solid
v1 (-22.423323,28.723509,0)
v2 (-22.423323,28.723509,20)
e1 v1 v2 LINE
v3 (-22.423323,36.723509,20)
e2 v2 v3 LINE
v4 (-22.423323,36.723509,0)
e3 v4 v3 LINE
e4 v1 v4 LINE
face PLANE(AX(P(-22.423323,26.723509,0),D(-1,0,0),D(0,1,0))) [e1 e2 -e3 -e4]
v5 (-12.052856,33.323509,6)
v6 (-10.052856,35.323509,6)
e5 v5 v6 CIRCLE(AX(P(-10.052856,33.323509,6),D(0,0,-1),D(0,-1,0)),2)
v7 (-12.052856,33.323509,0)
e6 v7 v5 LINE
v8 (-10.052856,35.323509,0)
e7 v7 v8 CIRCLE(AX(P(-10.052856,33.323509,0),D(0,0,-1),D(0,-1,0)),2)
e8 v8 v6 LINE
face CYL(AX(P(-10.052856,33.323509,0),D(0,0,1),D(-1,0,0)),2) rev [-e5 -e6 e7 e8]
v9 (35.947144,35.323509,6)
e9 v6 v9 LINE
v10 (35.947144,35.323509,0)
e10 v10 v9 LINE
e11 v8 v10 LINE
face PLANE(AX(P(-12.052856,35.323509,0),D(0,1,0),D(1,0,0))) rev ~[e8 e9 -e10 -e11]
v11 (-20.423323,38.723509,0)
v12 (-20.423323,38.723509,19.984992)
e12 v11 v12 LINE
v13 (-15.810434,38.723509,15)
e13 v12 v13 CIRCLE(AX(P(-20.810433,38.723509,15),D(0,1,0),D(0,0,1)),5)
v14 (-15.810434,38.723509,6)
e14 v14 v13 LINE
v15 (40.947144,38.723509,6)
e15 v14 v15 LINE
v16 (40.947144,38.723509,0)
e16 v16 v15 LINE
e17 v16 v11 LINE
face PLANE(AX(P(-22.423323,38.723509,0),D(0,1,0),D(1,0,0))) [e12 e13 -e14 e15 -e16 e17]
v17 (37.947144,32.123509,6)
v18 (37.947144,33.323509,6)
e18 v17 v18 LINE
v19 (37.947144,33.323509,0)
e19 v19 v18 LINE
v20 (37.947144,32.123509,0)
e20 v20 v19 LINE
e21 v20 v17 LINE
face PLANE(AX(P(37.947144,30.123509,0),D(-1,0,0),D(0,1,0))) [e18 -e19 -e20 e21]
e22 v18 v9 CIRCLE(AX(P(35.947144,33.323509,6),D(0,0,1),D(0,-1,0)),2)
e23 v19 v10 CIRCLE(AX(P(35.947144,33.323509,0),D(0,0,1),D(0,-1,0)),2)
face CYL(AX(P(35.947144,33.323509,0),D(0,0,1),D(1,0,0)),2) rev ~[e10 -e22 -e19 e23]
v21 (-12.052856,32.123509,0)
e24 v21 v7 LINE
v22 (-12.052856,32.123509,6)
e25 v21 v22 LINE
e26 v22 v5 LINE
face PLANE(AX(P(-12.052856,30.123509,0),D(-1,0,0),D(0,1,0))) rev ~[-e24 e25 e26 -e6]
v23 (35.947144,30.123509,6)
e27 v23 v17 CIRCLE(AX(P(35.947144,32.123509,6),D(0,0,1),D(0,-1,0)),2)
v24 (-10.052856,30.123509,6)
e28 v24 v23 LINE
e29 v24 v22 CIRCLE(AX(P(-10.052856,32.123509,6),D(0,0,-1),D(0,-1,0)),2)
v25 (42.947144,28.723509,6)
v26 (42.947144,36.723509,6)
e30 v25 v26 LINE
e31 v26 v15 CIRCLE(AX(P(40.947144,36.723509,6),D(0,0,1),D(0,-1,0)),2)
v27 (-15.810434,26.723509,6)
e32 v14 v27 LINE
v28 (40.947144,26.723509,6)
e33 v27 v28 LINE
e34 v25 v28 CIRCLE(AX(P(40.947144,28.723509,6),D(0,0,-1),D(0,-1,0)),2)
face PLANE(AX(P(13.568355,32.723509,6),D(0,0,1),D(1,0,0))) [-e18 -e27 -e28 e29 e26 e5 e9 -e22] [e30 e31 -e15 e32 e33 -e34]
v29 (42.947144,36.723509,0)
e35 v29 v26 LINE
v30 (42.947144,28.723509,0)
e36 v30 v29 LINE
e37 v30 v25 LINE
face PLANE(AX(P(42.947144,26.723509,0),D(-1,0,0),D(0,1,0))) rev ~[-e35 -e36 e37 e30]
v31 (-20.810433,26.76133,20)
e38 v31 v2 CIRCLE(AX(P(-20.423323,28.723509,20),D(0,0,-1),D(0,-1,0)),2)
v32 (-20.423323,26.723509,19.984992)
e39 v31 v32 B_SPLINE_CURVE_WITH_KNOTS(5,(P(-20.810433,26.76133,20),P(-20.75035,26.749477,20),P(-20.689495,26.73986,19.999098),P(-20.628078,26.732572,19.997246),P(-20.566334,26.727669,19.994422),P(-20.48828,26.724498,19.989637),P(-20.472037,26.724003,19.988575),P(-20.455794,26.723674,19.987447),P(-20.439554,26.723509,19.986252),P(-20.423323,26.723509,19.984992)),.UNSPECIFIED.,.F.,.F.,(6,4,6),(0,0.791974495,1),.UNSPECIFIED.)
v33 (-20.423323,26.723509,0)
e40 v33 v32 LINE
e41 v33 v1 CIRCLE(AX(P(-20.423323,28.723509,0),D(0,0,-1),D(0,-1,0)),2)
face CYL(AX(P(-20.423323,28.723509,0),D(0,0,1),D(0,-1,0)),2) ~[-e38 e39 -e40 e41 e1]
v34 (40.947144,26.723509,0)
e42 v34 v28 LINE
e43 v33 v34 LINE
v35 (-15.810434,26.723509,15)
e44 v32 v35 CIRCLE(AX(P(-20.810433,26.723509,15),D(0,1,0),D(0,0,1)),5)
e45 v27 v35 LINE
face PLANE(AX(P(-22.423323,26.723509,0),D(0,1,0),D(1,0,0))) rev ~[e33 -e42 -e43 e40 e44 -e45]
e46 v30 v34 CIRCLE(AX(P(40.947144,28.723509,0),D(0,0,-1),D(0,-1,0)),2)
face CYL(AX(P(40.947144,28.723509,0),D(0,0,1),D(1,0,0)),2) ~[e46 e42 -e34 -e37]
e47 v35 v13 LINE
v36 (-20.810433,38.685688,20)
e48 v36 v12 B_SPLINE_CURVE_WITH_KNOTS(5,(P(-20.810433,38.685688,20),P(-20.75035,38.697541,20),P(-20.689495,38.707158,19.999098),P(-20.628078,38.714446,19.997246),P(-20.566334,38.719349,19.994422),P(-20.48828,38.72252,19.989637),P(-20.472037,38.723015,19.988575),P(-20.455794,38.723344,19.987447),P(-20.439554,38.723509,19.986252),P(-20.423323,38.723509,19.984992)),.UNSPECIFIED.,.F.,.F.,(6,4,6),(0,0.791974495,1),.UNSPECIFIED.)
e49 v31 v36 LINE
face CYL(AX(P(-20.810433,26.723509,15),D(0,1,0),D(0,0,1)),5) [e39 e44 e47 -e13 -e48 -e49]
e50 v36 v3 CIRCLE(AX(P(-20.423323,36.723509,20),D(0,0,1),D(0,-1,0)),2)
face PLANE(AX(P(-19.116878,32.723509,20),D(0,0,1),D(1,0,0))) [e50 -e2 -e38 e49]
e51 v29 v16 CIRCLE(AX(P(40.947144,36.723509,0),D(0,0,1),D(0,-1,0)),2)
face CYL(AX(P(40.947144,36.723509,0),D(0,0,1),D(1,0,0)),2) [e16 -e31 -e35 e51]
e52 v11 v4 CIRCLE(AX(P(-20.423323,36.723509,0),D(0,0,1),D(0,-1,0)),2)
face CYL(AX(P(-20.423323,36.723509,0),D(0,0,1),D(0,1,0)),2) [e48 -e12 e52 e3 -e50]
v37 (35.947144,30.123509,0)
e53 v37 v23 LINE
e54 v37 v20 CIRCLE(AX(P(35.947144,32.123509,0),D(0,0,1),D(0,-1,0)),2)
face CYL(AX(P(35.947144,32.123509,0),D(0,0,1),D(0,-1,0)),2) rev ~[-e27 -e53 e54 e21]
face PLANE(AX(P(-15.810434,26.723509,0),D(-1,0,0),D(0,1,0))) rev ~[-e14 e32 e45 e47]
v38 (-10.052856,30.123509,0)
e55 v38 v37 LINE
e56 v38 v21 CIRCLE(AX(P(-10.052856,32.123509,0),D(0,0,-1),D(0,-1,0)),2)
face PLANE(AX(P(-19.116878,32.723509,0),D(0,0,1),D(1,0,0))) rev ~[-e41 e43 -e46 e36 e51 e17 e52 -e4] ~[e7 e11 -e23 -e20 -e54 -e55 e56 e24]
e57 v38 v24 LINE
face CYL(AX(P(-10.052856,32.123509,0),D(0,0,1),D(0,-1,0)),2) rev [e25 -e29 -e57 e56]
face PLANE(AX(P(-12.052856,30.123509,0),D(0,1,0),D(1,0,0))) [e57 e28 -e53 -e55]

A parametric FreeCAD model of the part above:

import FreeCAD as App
import Part
import Sketcher
from FreeCAD import Vector
Q = App.Units.Quantity


def edges_at(feature, points):
    """Names of the edges that pass closest to the given points."""
    edges = feature.Shape.Edges
    near = lambda p: min(range(len(edges)), key=lambda i: edges[i].distToShape(Part.Vertex(*p))[0])
    return sorted({f"Edge{near(p) + 1}" for p in points})


def add_polygon(sketch, points):
    """Adds a closed chain of lines whose ends are joined by coincident constraints."""
    first, n = sketch.GeometryCount, len(points)
    for a, b in zip(points, points[1:] + points[:1]):
        sketch.addGeometry(Part.LineSegment(App.Vector(*a, 0), App.Vector(*b, 0)), False)
    for i in range(n):
        sketch.addConstraint(Sketcher.Constraint("Coincident", first + i, 2, first + (i + 1) % n, 1))

doc = App.newDocument("Part")
body = doc.addObject("PartDesign::Body", "Body")

sketch1 = body.newObject("Sketcher::SketchObject", "Sketch")
sketch1.AttachmentSupport = (doc.getObject("XY_Plane"), [""])
sketch1.MapMode = "FlatFace"
add_polygon(sketch1, [(-16, 39), (-16, 27), (43, 27), (43, 39)])
add_polygon(sketch1, [(38, 30), (-12, 30), (-12, 35), (38, 35)])
sketch1.addConstraint(Sketcher.Constraint("Vertical", 0))
sketch1.addConstraint(Sketcher.Constraint("Horizontal", 1))
sketch1.addConstraint(Sketcher.Constraint("Vertical", 2))
sketch1.addConstraint(Sketcher.Constraint("Horizontal", 3))
sketch1.addConstraint(Sketcher.Constraint("Horizontal", 4))
sketch1.addConstraint(Sketcher.Constraint("Vertical", 5))
sketch1.addConstraint(Sketcher.Constraint("Horizontal", 6))
sketch1.addConstraint(Sketcher.Constraint("Vertical", 7))
sketch1.addConstraint(Sketcher.Constraint("DistanceX", 4, 2, 4, 1, Q("50 mm")))
sketch1.addConstraint(Sketcher.Constraint("DistanceY", 0, 2, 0, 1, Q("12 mm")))
sketch1.addConstraint(Sketcher.Constraint("DistanceY", 5, 1, 5, 2, Q("5.2 mm")))
sketch1.addConstraint(Sketcher.Constraint("DistanceX", 4, 2, 1, 2, Q("55 mm")))
sketch1.addConstraint(Sketcher.Constraint("DistanceY", 0, 2, 4, 2, Q("3.4 mm")))
sketch1.addConstraint(Sketcher.Constraint("DistanceX", 1, 1, 1, 2, Q("58.757578 mm")))
sketch1.addConstraint(Sketcher.Constraint("DistanceY", -1, 1, 0, 2, Q("26.723509 mm")))
sketch1.addConstraint(Sketcher.Constraint("DistanceX", 0, 2, -1, 1, Q("15.810434 mm")))
pad1 = body.newObject("PartDesign::Pad", "Pad")
pad1.Profile = sketch1
pad1.Length = 6

sketch2 = body.newObject("Sketcher::SketchObject", "Sketch001")
sketch2.AttachmentSupport = (doc.getObject("XY_Plane"), [""])
sketch2.MapMode = "FlatFace"
add_polygon(sketch2, [(-22, 39), (-22, 27), (-16, 27), (-16, 39)])
sketch2.addConstraint(Sketcher.Constraint("Vertical", 0))
sketch2.addConstraint(Sketcher.Constraint("Horizontal", 1))
sketch2.addConstraint(Sketcher.Constraint("Vertical", 2))
sketch2.addConstraint(Sketcher.Constraint("Horizontal", 3))
sketch2.addConstraint(Sketcher.Constraint("DistanceY", 0, 2, 0, 1, Q("12 mm")))
sketch2.addConstraint(Sketcher.Constraint("DistanceX", 1, 1, 1, 2, Q("6.612889 mm")))
sketch2.addConstraint(Sketcher.Constraint("DistanceY", -1, 1, 0, 2, Q("26.723509 mm")))
sketch2.addConstraint(Sketcher.Constraint("DistanceX", 0, 2, -1, 1, Q("22.423323 mm")))
pad2 = body.newObject("PartDesign::Pad", "Pad001")
pad2.Profile = sketch2
pad2.Length = 20
doc.recompute()

fillet = body.newObject("PartDesign::Fillet", "Fillet")
fillet.Base = (pad2, edges_at(pad2, [(42.947, 26.724, 3)]))
fillet.Radius = 2
doc.recompute()

fillet2 = body.newObject("PartDesign::Fillet", "Fillet001")
fillet2.Base = (fillet, edges_at(fillet, [(42.947, 38.724, 3)]))
fillet2.Radius = 2
doc.recompute()

fillet3 = body.newObject("PartDesign::Fillet", "Fillet002")
fillet3.Base = (fillet2, edges_at(fillet2, [
    (-12.053, 35.324, 3),
    (37.947, 35.324, 3),
    (37.947, 30.124, 3),
    (-12.053, 30.124, 3),
]))
fillet3.Radius = 2
doc.recompute()

fillet4 = body.newObject("PartDesign::Fillet", "Fillet003")
fillet4.Base = (fillet3, edges_at(fillet3, [(-22.423, 38.724, 10), (-22.423, 26.724, 10)]))
fillet4.Radius = 2
doc.recompute()

fillet5 = body.newObject("PartDesign::Fillet", "Fillet004")
fillet5.Base = (fillet4, edges_at(fillet4, [(-15.81, 32.724, 20)]))
fillet5.Radius = 5

doc.recompute()
